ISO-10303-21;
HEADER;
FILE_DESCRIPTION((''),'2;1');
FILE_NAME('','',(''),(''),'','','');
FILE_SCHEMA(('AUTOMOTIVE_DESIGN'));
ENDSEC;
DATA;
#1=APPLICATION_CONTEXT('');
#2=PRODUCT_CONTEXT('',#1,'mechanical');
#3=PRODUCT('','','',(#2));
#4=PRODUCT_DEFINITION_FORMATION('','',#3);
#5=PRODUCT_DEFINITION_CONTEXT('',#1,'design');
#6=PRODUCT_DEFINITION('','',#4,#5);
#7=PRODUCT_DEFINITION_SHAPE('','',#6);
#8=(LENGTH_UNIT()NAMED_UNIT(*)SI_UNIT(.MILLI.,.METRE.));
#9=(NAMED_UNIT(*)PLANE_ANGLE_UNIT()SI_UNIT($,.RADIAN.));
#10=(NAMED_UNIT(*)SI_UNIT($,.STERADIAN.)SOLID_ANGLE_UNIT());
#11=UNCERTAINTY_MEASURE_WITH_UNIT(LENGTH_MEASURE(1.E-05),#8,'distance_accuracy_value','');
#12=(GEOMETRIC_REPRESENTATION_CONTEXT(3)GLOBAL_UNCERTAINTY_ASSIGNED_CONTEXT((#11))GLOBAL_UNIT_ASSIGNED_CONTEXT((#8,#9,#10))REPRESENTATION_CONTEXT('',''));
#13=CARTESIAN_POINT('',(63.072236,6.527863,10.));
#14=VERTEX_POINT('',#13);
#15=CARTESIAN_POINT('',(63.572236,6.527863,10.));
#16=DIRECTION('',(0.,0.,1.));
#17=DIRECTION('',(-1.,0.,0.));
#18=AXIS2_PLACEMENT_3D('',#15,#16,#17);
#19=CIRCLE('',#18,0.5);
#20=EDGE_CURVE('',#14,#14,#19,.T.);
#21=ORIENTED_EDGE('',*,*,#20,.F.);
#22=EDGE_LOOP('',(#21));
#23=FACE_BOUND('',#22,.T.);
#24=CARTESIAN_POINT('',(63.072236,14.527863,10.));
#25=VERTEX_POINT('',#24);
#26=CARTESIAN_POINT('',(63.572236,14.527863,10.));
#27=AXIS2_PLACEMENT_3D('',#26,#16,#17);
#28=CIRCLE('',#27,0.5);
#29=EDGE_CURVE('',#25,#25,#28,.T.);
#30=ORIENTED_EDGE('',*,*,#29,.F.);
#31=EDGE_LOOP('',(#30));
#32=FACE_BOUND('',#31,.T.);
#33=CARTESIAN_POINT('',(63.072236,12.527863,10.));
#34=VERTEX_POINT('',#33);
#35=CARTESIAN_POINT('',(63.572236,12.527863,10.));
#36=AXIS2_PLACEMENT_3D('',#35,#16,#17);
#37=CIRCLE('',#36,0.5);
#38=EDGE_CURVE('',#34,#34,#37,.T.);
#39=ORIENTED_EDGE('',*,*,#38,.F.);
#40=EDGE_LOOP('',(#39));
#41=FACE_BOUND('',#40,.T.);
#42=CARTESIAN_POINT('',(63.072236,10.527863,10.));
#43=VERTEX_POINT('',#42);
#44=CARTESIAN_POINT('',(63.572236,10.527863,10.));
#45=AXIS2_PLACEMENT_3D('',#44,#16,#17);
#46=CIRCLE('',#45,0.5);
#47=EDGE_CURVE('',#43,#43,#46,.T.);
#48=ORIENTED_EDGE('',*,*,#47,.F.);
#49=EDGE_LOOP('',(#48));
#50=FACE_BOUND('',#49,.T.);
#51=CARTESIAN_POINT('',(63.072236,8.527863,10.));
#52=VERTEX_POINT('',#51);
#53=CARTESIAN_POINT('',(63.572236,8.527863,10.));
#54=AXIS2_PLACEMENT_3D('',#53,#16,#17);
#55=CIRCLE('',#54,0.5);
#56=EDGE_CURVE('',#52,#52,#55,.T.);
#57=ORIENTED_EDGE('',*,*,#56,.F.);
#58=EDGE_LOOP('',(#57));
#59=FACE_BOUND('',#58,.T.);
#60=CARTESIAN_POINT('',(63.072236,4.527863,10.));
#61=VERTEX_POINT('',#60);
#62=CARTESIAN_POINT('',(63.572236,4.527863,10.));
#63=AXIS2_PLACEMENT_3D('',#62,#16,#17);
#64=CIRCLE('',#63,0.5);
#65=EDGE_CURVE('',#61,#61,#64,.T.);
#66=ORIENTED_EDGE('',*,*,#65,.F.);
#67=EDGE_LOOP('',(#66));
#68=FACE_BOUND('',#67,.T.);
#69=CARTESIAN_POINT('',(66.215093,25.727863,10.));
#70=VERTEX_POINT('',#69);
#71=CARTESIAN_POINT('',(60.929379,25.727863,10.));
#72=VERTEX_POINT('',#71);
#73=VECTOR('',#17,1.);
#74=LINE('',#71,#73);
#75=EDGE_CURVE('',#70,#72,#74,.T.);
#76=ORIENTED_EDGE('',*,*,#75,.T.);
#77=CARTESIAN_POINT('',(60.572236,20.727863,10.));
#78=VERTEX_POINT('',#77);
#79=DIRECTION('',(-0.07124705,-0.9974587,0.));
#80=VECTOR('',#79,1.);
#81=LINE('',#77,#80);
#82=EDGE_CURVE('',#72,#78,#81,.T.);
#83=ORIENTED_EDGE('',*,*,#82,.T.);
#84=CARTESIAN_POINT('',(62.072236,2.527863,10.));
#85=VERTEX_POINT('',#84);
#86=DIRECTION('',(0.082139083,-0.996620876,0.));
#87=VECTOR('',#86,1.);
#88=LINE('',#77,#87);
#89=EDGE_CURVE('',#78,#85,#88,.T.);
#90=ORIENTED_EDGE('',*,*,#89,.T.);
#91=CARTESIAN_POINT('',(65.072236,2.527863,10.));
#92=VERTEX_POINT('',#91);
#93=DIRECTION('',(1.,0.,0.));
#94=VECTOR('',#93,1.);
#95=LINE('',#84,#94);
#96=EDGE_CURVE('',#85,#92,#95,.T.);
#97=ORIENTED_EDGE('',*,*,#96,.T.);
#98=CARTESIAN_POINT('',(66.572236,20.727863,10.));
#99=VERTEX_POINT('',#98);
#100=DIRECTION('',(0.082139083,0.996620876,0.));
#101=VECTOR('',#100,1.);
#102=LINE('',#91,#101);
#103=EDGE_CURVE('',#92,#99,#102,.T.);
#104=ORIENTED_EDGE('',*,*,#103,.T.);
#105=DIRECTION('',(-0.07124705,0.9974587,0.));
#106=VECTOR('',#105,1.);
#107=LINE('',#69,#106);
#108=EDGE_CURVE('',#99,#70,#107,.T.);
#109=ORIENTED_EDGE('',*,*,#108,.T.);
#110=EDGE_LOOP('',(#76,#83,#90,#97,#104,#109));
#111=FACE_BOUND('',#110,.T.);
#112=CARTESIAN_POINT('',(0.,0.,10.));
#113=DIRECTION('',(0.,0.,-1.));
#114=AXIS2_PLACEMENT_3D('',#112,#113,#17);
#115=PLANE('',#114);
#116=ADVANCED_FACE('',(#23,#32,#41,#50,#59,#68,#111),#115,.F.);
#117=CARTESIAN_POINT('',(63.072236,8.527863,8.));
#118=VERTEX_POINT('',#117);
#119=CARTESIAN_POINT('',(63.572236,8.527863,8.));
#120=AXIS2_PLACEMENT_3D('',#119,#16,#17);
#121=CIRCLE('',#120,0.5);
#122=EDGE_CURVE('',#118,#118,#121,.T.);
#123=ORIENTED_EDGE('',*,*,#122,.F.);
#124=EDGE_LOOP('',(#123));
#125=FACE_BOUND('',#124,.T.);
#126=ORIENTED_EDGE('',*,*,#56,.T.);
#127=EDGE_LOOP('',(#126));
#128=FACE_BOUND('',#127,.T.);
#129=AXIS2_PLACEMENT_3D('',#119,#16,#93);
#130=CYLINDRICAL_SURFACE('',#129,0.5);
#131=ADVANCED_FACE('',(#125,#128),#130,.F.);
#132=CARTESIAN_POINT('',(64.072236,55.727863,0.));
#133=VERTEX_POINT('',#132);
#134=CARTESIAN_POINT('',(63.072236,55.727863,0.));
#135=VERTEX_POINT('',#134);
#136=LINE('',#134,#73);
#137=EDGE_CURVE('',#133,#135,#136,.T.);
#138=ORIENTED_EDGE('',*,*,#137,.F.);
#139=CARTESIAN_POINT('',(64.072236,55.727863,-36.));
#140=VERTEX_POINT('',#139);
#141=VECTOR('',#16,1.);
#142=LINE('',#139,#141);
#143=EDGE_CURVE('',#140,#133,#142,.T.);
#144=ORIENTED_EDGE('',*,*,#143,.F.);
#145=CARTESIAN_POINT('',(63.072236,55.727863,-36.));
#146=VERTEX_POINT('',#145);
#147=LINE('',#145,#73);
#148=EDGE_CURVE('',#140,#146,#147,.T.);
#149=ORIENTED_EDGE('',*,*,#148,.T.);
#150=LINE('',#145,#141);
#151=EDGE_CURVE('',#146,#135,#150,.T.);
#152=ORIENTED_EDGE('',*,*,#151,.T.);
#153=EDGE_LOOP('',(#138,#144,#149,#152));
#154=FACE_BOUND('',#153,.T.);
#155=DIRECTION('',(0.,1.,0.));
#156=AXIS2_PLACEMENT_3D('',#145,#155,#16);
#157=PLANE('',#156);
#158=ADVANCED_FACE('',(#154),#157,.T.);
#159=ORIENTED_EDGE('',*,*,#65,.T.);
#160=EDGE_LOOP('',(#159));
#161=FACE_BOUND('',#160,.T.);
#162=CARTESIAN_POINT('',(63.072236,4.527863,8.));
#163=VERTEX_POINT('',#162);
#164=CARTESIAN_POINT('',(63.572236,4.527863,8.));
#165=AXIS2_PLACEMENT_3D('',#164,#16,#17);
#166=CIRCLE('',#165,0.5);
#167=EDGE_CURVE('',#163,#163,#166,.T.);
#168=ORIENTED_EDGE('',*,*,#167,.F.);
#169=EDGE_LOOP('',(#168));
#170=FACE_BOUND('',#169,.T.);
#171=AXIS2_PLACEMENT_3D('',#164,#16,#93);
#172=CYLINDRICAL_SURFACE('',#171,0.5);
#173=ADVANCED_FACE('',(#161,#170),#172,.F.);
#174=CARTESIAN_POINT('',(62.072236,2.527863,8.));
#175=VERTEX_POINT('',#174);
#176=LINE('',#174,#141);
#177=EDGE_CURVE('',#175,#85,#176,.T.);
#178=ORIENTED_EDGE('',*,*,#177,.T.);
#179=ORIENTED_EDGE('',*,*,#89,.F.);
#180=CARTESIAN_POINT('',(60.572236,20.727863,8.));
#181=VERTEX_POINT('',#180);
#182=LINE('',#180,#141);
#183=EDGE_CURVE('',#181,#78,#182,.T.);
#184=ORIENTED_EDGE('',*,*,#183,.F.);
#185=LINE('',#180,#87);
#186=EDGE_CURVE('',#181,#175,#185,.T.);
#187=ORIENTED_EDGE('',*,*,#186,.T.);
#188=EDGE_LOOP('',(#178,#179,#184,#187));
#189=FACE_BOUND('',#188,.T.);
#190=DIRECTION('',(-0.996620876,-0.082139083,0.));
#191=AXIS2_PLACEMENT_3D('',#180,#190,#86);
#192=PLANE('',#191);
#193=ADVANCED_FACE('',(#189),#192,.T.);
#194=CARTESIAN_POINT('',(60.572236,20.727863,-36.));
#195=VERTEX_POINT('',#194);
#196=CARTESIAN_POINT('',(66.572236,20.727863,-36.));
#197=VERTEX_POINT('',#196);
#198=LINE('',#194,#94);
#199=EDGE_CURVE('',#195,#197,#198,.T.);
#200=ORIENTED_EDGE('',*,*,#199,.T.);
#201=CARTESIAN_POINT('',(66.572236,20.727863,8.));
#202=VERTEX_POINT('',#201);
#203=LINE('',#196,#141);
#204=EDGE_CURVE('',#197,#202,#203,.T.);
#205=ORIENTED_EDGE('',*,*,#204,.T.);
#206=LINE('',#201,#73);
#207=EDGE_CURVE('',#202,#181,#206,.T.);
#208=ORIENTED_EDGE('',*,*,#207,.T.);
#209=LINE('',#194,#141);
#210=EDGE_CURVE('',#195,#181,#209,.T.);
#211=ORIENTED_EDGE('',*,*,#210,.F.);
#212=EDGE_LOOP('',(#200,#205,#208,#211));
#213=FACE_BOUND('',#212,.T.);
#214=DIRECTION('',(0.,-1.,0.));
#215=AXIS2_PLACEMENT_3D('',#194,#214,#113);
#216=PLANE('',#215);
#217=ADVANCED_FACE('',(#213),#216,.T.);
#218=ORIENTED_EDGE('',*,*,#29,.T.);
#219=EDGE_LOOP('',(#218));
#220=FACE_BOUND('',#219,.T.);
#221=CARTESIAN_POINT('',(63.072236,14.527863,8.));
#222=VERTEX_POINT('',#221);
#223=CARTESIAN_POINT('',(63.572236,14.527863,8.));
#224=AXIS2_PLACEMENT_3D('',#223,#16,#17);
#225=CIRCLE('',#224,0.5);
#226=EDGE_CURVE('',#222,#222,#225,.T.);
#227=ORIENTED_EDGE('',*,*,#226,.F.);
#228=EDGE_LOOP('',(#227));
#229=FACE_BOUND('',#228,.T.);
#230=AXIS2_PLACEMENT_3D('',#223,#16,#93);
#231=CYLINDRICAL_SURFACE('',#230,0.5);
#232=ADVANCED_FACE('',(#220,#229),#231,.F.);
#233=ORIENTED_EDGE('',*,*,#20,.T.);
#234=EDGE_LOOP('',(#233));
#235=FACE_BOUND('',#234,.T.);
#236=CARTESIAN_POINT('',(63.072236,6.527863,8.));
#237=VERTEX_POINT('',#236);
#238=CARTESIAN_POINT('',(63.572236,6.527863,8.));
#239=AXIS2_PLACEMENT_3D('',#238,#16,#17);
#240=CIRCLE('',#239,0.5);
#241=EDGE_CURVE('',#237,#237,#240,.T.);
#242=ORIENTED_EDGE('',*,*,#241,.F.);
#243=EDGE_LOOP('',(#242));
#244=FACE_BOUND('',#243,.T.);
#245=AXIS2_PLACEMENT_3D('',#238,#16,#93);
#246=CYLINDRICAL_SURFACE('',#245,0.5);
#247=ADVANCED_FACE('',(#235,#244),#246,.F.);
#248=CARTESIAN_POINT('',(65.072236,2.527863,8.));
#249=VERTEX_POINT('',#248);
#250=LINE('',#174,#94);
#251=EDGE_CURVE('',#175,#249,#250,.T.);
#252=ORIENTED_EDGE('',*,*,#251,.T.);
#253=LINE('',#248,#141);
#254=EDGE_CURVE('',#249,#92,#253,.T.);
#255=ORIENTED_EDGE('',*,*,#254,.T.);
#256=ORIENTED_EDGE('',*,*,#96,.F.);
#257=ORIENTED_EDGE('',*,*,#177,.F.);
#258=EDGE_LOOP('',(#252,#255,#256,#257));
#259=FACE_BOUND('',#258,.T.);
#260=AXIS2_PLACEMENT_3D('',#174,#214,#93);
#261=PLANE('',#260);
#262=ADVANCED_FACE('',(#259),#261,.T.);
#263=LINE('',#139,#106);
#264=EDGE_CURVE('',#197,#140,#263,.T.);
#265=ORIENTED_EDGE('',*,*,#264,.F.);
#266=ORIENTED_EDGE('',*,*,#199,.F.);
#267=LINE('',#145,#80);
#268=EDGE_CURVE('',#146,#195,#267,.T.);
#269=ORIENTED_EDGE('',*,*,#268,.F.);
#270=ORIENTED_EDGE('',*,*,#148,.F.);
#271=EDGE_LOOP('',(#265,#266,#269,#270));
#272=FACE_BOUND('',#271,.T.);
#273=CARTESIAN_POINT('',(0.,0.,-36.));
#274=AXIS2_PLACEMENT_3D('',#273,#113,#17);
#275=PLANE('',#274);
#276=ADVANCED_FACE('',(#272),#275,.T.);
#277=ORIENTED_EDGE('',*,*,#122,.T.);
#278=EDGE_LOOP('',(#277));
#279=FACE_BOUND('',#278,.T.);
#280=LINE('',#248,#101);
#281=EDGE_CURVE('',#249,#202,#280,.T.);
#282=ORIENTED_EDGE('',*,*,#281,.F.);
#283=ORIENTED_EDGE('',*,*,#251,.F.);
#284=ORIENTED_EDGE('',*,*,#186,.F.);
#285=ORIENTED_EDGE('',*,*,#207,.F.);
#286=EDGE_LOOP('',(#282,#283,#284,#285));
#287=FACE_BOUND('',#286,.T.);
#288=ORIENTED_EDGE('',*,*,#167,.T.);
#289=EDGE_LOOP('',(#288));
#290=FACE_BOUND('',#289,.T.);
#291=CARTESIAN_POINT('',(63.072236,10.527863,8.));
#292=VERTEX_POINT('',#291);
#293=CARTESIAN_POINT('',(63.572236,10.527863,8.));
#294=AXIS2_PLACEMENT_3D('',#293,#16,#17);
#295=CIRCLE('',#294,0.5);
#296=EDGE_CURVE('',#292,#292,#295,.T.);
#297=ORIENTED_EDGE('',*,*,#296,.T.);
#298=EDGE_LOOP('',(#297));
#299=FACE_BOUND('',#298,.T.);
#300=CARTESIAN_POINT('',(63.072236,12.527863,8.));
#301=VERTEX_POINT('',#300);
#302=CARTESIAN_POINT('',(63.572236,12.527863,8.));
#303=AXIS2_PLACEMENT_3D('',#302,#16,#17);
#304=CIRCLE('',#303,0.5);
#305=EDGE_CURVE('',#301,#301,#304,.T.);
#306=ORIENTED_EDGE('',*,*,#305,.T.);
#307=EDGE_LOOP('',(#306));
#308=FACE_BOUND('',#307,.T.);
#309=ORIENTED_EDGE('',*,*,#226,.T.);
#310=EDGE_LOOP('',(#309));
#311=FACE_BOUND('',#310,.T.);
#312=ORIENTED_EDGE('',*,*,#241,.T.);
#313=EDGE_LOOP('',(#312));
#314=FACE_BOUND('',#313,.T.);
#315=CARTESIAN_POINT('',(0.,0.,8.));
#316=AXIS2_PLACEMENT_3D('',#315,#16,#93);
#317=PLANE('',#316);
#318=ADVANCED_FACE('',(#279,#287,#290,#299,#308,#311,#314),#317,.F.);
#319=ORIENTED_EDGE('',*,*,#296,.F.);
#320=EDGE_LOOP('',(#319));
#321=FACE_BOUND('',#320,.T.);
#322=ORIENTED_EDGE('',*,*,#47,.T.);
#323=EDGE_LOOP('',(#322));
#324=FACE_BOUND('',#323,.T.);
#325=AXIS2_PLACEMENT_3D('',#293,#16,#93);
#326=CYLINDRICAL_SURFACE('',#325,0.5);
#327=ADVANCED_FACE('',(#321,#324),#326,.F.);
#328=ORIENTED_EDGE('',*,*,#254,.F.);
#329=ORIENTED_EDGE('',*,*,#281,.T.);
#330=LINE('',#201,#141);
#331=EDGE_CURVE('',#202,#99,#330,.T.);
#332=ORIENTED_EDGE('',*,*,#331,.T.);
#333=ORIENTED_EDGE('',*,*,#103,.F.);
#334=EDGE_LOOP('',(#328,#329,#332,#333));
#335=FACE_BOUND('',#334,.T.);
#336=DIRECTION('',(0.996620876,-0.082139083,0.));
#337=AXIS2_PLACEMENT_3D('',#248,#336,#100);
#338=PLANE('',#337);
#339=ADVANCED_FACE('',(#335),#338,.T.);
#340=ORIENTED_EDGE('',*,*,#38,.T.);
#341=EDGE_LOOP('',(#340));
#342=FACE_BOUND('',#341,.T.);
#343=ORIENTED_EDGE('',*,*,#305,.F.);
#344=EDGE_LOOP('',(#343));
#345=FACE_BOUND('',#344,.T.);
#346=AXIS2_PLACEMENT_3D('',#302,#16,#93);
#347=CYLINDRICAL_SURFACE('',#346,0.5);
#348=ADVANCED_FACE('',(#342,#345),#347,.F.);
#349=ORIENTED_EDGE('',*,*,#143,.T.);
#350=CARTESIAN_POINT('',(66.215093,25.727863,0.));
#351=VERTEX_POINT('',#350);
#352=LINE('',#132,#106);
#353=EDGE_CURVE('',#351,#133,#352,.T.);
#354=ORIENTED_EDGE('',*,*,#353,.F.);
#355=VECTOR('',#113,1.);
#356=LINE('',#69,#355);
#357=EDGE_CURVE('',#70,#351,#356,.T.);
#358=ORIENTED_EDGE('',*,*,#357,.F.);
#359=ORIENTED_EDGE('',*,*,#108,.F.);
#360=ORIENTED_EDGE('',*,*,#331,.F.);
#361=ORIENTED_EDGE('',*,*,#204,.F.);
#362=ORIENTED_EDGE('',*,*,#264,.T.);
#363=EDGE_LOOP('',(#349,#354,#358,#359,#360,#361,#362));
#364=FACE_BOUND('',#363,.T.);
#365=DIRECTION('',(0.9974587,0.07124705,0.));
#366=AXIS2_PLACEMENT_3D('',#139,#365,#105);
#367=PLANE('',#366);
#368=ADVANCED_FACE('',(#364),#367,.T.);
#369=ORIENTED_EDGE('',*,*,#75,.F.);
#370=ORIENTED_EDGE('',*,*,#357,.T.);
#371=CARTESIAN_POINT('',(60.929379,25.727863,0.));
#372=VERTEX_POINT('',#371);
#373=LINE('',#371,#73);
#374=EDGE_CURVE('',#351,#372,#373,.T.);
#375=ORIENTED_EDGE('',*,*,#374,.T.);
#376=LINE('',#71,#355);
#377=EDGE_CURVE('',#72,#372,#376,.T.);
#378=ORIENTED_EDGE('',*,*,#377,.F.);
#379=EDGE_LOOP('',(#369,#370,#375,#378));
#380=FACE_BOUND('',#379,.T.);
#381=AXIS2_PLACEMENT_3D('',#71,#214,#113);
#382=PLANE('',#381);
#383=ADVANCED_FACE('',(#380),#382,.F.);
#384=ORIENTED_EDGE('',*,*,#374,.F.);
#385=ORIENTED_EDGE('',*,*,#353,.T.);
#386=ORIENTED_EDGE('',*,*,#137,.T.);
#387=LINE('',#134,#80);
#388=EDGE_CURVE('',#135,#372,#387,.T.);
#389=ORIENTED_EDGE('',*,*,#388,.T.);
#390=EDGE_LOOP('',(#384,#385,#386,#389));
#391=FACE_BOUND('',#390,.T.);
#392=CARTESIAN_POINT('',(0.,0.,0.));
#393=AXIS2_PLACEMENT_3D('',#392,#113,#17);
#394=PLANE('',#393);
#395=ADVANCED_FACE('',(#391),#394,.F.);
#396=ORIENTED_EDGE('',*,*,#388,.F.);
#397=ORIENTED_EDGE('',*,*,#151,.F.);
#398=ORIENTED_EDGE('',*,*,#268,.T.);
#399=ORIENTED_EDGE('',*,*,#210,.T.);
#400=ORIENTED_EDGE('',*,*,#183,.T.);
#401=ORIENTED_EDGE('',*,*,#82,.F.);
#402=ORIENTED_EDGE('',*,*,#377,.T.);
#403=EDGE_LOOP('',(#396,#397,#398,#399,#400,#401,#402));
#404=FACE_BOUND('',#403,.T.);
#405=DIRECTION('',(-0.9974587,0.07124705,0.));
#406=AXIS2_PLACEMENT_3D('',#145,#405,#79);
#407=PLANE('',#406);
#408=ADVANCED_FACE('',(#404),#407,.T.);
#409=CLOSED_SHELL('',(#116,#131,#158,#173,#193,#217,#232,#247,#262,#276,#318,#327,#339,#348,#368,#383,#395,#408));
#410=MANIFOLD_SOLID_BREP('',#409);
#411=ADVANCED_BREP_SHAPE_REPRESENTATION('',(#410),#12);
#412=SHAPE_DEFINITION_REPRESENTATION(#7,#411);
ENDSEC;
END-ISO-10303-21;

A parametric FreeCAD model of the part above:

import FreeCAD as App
import Part
import Sketcher

V = App.Vector
Q = App.Units.Quantity

doc = App.newDocument("Part")
body = doc.addObject("PartDesign::Body", "Body")

sketch1 = doc.addObject("Sketcher::SketchObject", "Sketch")
body.addObject(sketch1)
sketch1.AttachmentSupport = (doc.XY_Plane, [""])
sketch1.MapMode = "FlatFace"
sketch1.addGeometry([
    Part.LineSegment(V(64.072236, 55.727863, 0), V(63.072236, 55.727863, 0)),
    Part.LineSegment(V(63.072236, 55.727863, 0), V(60.572236, 20.727863, 0)),
    Part.LineSegment(V(60.572236, 20.727863, 0), V(66.572236, 20.727863, 0)),
    Part.LineSegment(V(66.572236, 20.727863, 0), V(64.072236, 55.727863, 0)),
], False)
sketch1.addConstraint([
    Sketcher.Constraint("Coincident", 0, 2, 1, 1),
    Sketcher.Constraint("Coincident", 1, 2, 2, 1),
    Sketcher.Constraint("Coincident", 2, 2, 3, 1),
    Sketcher.Constraint("Coincident", 3, 2, 0, 1),
    Sketcher.Constraint("Horizontal", 0),
    Sketcher.Constraint("Horizontal", 2),
    Sketcher.Constraint("Equal", 1, 3),
    Sketcher.Constraint("DistanceX", 0, 2, 0, 1, Q("1 mm")),
    Sketcher.Constraint("DistanceX", 2, 1, 2, 2, Q("6 mm")),
    Sketcher.Constraint("DistanceY", 1, 2, 0, 2, Q("35 mm")),
    Sketcher.Constraint("DistanceX", -1, 1, 0, 2, Q("63.072236 mm")),
    Sketcher.Constraint("DistanceY", -1, 1, 0, 2, Q("55.727863 mm")),
])
pad1 = doc.addObject("PartDesign::Pad", "Pad")
body.addObject(pad1)
pad1.Profile = sketch1
pad1.Length = 36
pad1.Reversed = True

sketch2 = doc.addObject("Sketcher::SketchObject", "Sketch001")
body.addObject(sketch2)
sketch2.AttachmentSupport = (doc.XY_Plane, [""])
sketch2.MapMode = "FlatFace"
sketch2.addGeometry([
    Part.LineSegment(V(60.929379, 25.727863, 0), V(60.572236, 20.727863, 0)),
    Part.LineSegment(V(60.572236, 20.727863, 0), V(66.572236, 20.727863, 0)),
    Part.LineSegment(V(66.572236, 20.727863, 0), V(66.215093, 25.727863, 0)),
    Part.LineSegment(V(66.215093, 25.727863, 0), V(60.929379, 25.727863, 0)),
], False)
sketch2.addConstraint([
    Sketcher.Constraint("Coincident", 0, 2, 1, 1),
    Sketcher.Constraint("Coincident", 1, 2, 2, 1),
    Sketcher.Constraint("Coincident", 2, 2, 3, 1),
    Sketcher.Constraint("Coincident", 3, 2, 0, 1),
    Sketcher.Constraint("Horizontal", 1),
    Sketcher.Constraint("Horizontal", 3),
    Sketcher.Constraint("Equal", 0, 2),
    Sketcher.Constraint("DistanceX", 1, 1, 1, 2, Q("6 mm")),
    Sketcher.Constraint("DistanceY", 1, 2, 2, 2, Q("5 mm")),
    Sketcher.Constraint("Distance", 0, Q("5.012739 mm")),
    Sketcher.Constraint("DistanceX", -1, 1, 3, 2, Q("60.929379 mm")),
    Sketcher.Constraint("DistanceY", -1, 1, 0, 2, Q("20.727863 mm")),
])
pad2 = doc.addObject("PartDesign::Pad", "Pad001")
body.addObject(pad2)
pad2.Profile = sketch2
pad2.Length = 10

sketch3 = doc.addObject("Sketcher::SketchObject", "Sketch002")
body.addObject(sketch3)
sketch3.AttachmentSupport = (doc.XY_Plane, [""])
sketch3.MapMode = "FlatFace"
sketch3.AttachmentOffset = App.Placement(V(0, 0, 10), App.Rotation())
sketch3.addGeometry([
    Part.LineSegment(V(66.572236, 20.727863, 0), V(60.572236, 20.727863, 0)),
    Part.LineSegment(V(60.572236, 20.727863, 0), V(62.072236, 2.527863, 0)),
    Part.LineSegment(V(62.072236, 2.527863, 0), V(65.072236, 2.527863, 0)),
    Part.LineSegment(V(65.072236, 2.527863, 0), V(66.572236, 20.727863, 0)),
    Part.Circle(V(63.572236, 4.527863, 0), V(0, 0, 1), 0.5),
    Part.Circle(V(63.572236, 6.527863, 0), V(0, 0, 1), 0.5),
    Part.Circle(V(63.572236, 8.527863, 0), V(0, 0, 1), 0.5),
    Part.Circle(V(63.572236, 10.527863, 0), V(0, 0, 1), 0.5),
    Part.Circle(V(63.572236, 12.527863, 0), V(0, 0, 1), 0.5),
    Part.Circle(V(63.572236, 14.527863, 0), V(0, 0, 1), 0.5),
], False)
sketch3.addConstraint([
    Sketcher.Constraint("Coincident", 0, 2, 1, 1),
    Sketcher.Constraint("Coincident", 1, 2, 2, 1),
    Sketcher.Constraint("Coincident", 2, 2, 3, 1),
    Sketcher.Constraint("Coincident", 3, 2, 0, 1),
    Sketcher.Constraint("Horizontal", 0),
    Sketcher.Constraint("Horizontal", 2),
    Sketcher.Constraint("Equal", 4, 5),
    Sketcher.Constraint("Equal", 5, 6),
    Sketcher.Constraint("Equal", 6, 7),
    Sketcher.Constraint("Equal", 7, 8),
    Sketcher.Constraint("Equal", 8, 9),
    Sketcher.Constraint("Vertical", 4, 3, 5, 3),
    Sketcher.Constraint("Vertical", 5, 3, 6, 3),
    Sketcher.Constraint("Vertical", 6, 3, 7, 3),
    Sketcher.Constraint("Vertical", 7, 3, 8, 3),
    Sketcher.Constraint("Vertical", 8, 3, 9, 3),
    Sketcher.Constraint("Equal", 1, 3),
    Sketcher.Constraint("Diameter", 4, Q("1 mm")),
    Sketcher.Constraint("DistanceX", 0, 2, 0, 1, Q("6 mm")),
    Sketcher.Constraint("DistanceX", 2, 1, 2, 2, Q("3 mm")),
    Sketcher.Constraint("DistanceY", 4, 3, 5, 3, Q("2 mm")),
    Sketcher.Constraint("DistanceY", 5, 3, 6, 3, Q("2 mm")),
    Sketcher.Constraint("DistanceY", 6, 3, 7, 3, Q("2 mm")),
    Sketcher.Constraint("DistanceY", 7, 3, 8, 3, Q("2 mm")),
    Sketcher.Constraint("DistanceY", 8, 3, 9, 3, Q("2 mm")),
    Sketcher.Constraint("DistanceX", 0, 2, 9, 3, Q("3 mm")),
    Sketcher.Constraint("DistanceY", 1, 2, 4, 3, Q("2 mm")),
    Sketcher.Constraint("DistanceY", 9, 3, 0, 2, Q("6.2 mm")),
    Sketcher.Constraint("DistanceX", -1, 1, 4, 3, Q("63.572236 mm")),
    Sketcher.Constraint("DistanceY", -1, 1, 4, 3, Q("4.527863 mm")),
])
pad3 = doc.addObject("PartDesign::Pad", "Pad002")
body.addObject(pad3)
pad3.Profile = sketch3
pad3.Length = 2
pad3.Reversed = True

doc.recompute()
